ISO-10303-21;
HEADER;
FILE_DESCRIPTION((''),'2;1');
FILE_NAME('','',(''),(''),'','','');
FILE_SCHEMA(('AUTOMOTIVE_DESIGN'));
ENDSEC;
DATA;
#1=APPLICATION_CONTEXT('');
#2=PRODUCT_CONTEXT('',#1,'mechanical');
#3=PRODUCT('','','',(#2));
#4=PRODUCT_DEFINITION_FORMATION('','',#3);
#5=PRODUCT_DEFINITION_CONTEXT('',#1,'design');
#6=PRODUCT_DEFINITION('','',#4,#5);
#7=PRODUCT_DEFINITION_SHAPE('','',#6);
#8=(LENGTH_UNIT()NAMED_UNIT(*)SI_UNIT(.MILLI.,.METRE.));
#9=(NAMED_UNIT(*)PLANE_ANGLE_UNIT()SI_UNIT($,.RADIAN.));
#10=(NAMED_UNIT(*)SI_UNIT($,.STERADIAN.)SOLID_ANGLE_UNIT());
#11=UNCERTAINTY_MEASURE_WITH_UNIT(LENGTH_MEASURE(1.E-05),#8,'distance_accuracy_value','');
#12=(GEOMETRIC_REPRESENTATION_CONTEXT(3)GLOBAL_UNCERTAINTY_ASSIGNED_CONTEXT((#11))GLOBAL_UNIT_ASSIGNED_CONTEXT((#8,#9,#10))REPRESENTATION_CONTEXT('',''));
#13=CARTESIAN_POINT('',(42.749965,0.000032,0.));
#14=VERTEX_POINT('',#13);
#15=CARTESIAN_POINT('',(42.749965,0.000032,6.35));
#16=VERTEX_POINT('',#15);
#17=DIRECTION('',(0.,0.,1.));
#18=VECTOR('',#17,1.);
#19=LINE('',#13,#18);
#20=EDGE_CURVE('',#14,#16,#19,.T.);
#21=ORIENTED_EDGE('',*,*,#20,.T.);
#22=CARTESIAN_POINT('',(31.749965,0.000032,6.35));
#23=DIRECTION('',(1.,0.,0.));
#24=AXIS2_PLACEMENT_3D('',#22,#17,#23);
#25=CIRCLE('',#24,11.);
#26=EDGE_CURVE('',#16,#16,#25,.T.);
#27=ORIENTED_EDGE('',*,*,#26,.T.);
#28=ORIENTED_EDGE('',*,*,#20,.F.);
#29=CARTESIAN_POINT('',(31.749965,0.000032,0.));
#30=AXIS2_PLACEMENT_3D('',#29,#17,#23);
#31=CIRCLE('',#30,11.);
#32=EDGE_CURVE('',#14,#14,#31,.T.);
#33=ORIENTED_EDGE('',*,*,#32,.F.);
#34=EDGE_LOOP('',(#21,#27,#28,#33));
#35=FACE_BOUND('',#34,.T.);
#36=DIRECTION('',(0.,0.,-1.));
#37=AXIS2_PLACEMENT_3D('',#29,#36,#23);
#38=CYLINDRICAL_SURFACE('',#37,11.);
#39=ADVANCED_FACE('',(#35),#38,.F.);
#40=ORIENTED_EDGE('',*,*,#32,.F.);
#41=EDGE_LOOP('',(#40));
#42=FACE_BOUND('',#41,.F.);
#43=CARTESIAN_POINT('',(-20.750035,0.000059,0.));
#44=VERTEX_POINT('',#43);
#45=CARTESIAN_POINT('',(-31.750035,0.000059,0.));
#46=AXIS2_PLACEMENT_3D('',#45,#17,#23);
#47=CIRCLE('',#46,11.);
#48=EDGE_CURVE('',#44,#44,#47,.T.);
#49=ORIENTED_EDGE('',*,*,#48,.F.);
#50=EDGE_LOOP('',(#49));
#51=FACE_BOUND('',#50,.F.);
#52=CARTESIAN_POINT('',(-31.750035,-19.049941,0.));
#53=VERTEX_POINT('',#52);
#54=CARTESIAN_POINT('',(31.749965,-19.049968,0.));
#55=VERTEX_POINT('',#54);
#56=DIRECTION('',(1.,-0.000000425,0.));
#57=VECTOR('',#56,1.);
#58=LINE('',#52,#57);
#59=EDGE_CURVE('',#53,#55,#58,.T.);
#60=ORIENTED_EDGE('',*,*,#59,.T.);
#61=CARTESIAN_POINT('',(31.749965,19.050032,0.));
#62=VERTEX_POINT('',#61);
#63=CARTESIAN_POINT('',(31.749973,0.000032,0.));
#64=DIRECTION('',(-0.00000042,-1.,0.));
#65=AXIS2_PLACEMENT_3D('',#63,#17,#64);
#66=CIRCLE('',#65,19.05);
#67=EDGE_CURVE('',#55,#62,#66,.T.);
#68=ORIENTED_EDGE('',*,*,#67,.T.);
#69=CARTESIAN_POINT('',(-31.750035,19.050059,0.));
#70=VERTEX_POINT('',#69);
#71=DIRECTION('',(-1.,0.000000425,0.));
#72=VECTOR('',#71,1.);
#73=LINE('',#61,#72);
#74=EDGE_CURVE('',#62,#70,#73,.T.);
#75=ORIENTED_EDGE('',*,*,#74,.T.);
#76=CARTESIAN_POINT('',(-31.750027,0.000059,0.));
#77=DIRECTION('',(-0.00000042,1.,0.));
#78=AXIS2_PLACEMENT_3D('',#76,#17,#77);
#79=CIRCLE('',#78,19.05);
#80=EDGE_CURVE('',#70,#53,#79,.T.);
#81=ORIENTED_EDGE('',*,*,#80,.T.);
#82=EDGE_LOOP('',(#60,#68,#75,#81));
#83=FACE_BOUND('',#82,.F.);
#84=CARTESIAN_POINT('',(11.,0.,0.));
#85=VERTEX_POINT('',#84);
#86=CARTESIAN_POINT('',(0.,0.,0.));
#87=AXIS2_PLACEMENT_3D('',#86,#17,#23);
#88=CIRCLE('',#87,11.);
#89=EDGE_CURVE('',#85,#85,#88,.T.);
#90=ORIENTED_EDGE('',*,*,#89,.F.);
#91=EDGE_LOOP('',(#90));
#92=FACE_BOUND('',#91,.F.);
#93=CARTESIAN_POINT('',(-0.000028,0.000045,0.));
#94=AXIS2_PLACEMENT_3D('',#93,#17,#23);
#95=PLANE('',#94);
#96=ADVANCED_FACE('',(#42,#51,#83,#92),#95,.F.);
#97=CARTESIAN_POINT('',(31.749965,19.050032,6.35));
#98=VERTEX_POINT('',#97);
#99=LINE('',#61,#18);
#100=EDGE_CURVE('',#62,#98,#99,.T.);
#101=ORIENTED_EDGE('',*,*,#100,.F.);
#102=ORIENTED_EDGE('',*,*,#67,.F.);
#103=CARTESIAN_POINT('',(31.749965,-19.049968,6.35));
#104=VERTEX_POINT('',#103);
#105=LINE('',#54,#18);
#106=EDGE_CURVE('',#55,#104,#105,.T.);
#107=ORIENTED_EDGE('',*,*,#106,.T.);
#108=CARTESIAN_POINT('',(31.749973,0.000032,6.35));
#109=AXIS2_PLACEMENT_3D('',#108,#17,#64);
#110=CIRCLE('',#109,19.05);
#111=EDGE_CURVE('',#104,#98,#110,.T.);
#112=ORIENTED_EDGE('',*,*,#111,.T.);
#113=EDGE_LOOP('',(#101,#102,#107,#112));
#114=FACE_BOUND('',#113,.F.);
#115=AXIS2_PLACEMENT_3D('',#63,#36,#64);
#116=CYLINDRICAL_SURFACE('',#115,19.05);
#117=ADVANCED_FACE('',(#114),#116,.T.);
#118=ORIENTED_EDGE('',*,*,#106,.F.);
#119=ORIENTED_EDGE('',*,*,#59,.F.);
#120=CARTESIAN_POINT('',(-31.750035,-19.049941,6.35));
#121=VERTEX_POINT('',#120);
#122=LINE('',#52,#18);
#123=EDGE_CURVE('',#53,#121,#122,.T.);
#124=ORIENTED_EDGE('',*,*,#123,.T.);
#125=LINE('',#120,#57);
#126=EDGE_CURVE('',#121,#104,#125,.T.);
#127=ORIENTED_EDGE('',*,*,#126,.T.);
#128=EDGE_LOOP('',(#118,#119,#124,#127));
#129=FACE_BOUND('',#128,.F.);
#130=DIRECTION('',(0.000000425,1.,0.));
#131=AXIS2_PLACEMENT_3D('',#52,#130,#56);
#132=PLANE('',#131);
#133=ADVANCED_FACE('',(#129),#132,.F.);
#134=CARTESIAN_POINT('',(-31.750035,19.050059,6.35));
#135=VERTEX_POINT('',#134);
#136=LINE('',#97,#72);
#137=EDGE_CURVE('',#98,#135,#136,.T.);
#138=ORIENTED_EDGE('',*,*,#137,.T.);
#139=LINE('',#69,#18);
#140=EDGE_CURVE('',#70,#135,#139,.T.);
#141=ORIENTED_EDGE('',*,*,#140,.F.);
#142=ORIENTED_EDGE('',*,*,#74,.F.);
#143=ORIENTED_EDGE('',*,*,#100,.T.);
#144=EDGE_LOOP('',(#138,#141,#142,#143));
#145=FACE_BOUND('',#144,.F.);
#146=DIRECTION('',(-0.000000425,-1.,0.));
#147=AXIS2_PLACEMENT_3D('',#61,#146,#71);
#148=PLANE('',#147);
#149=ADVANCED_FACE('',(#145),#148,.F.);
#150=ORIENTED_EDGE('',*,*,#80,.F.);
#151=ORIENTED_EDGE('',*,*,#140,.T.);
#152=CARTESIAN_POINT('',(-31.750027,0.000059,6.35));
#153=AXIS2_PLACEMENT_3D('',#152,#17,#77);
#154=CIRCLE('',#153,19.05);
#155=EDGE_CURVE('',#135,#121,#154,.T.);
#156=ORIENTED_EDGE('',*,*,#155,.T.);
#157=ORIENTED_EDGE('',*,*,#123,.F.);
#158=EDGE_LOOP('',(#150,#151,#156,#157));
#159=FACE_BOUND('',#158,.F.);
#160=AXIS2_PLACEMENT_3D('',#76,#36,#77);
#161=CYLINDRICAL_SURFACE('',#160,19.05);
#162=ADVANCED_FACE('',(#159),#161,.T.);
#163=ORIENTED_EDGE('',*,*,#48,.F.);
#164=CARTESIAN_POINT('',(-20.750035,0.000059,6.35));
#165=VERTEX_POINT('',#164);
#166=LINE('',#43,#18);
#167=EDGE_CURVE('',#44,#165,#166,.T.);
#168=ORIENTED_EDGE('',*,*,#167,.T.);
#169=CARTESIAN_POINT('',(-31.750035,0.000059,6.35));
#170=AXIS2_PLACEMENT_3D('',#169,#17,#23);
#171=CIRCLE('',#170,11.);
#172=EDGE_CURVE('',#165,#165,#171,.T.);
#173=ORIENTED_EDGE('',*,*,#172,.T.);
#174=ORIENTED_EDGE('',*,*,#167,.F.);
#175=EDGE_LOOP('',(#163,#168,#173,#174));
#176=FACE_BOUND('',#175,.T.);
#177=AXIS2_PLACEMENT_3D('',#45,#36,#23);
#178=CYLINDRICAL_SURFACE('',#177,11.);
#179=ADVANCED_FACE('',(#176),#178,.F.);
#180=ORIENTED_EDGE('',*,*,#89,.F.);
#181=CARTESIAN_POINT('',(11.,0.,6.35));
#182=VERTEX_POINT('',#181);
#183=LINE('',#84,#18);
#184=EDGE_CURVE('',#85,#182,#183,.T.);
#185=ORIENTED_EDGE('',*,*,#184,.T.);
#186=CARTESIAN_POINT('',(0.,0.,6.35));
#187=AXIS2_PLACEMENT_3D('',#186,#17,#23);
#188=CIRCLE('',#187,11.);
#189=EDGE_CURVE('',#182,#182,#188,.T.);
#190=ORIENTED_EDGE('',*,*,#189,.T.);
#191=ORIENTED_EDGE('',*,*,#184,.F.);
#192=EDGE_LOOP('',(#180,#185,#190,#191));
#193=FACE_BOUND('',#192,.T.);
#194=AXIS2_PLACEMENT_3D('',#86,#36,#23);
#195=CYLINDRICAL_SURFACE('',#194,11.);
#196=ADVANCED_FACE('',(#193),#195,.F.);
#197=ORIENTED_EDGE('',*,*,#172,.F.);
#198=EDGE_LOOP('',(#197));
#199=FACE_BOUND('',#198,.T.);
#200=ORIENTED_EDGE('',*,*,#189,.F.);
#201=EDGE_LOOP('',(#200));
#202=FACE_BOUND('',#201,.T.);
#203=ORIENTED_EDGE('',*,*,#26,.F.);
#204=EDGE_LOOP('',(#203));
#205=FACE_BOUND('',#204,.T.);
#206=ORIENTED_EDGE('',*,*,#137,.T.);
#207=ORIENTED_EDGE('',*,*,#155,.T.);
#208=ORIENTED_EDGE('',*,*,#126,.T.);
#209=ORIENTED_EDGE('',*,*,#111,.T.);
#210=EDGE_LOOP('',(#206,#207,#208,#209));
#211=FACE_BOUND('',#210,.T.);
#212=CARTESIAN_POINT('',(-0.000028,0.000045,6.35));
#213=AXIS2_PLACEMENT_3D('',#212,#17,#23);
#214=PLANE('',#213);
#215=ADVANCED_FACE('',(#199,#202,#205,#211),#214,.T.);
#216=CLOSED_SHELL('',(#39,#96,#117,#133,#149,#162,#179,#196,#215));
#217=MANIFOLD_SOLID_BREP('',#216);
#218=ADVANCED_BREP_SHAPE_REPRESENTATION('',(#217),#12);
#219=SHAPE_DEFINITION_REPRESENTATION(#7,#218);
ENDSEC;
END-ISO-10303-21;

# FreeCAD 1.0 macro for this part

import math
import FreeCAD as App
import Part
import Sketcher

V = App.Vector
Q = App.Units.Quantity

doc = App.newDocument("Part")
params = doc.addObject("Spreadsheet::Sheet", "Params")
for row, (alias, value) in enumerate([
    ("sketch1_radius", "0.75 in"),
    ("sketch1_radius2", "0.75 in"),
    ("sketch1_length", "2.5 in"),
    ("sketch1_length2", "2.5 in"),
    ("pad1_length", "0.25 in"),
], start=1):
    params.set(f"A{row}", alias)
    params.set(f"B{row}", "=" + value)
    params.setAlias(f"B{row}", alias)

body = doc.addObject("PartDesign::Body", "Body")

sketch1 = body.newObject("Sketcher::SketchObject", "Sketch")
sketch1.AttachmentSupport = (doc.getObject("XY_Plane"), [""])
sketch1.MapMode = "FlatFace"
sketch1.addGeometry(Part.LineSegment(V(31.749965, 19.050032, 0), V(-31.750035, 19.050059, 0)), False)
sketch1.addGeometry(Part.ArcOfCircle(Part.Circle(V(-31.750027, 0.000059, 0), V(0, 0, 1), 19.05), math.radians(90.000024), math.radians(269.999976)), False)
sketch1.addGeometry(Part.LineSegment(V(-31.750035, -19.049941, 0), V(31.749965, -19.049968, 0)), False)
sketch1.addGeometry(Part.ArcOfCircle(Part.Circle(V(31.749973, 0.000032, 0), V(0, 0, 1), 19.05), math.radians(-90.000024), math.radians(90.000024)), False)
sketch1.addGeometry(Part.Circle(V(0, 0, 0), V(0, 0, 1), 11), False)
sketch1.addGeometry(Part.Circle(V(-31.750035, 0.000059, 0), V(0, 0, 1), 11), False)
sketch1.addGeometry(Part.Circle(V(31.749965, 0.000032, 0), V(0, 0, 1), 11), False)
sketch1.addConstraint(Sketcher.Constraint("Coincident", 0, 2, 1, 1))
sketch1.addConstraint(Sketcher.Constraint("Coincident", 1, 2, 2, 1))
sketch1.addConstraint(Sketcher.Constraint("Coincident", 2, 2, 3, 1))
sketch1.addConstraint(Sketcher.Constraint("Coincident", 3, 2, 0, 1))
sketch1.addConstraint(Sketcher.Constraint("Coincident", 4, 3, -1, 1))
sketch1.addConstraint(Sketcher.Constraint("Coincident", 5, 3, 1, 3))
sketch1.addConstraint(Sketcher.Constraint("Coincident", 6, 3, 3, 3))
sketch1.addConstraint(Sketcher.Constraint("Radius", 1, Q("0.75 in")))
sketch1.addConstraint(Sketcher.Constraint("Radius", 3, Q("0.75 in")))
sketch1.addConstraint(Sketcher.Constraint("Distance", 0, Q("2.5 in")))
sketch1.addConstraint(Sketcher.Constraint("Distance", 2, Q("2.5 in")))
sketch1.addConstraint(Sketcher.Constraint("DistanceX", 1, 3, 3, 3, Q("2.5 in")))
sketch1.addConstraint(Sketcher.Constraint("DistanceX", 0, 2, 6, 3, Q("2.5 in")))
sketch1.addConstraint(Sketcher.Constraint("DistanceX", 1, 2, 6, 3, Q("2.5 in")))
sketch1.addConstraint(Sketcher.Constraint("Diameter", 4, 22.0))
sketch1.addConstraint(Sketcher.Constraint("Diameter", 5, 22.0))
sketch1.addConstraint(Sketcher.Constraint("Diameter", 6, 22.0))
sketch1.addConstraint(Sketcher.Constraint("DistanceY", -1, 1, 0, 2, 19.050059))
sketch1.addConstraint(Sketcher.Constraint("DistanceY", 2, 2, -1, 1, 19.049968))
sketch1.addConstraint(Sketcher.Constraint("DistanceX", 1, 3, -1, 1, 31.750027))
sketch1.setExpression("Constraints[7]", "Params.sketch1_radius")
sketch1.setExpression("Constraints[8]", "Params.sketch1_radius2")
sketch1.setExpression("Constraints[9]", "Params.sketch1_length")
sketch1.setExpression("Constraints[10]", "Params.sketch1_length2")
pad1 = body.newObject("PartDesign::Pad", "Pad")
pad1.Profile = sketch1
pad1.setExpression("Length", "Params.pad1_length")

doc.recompute()
